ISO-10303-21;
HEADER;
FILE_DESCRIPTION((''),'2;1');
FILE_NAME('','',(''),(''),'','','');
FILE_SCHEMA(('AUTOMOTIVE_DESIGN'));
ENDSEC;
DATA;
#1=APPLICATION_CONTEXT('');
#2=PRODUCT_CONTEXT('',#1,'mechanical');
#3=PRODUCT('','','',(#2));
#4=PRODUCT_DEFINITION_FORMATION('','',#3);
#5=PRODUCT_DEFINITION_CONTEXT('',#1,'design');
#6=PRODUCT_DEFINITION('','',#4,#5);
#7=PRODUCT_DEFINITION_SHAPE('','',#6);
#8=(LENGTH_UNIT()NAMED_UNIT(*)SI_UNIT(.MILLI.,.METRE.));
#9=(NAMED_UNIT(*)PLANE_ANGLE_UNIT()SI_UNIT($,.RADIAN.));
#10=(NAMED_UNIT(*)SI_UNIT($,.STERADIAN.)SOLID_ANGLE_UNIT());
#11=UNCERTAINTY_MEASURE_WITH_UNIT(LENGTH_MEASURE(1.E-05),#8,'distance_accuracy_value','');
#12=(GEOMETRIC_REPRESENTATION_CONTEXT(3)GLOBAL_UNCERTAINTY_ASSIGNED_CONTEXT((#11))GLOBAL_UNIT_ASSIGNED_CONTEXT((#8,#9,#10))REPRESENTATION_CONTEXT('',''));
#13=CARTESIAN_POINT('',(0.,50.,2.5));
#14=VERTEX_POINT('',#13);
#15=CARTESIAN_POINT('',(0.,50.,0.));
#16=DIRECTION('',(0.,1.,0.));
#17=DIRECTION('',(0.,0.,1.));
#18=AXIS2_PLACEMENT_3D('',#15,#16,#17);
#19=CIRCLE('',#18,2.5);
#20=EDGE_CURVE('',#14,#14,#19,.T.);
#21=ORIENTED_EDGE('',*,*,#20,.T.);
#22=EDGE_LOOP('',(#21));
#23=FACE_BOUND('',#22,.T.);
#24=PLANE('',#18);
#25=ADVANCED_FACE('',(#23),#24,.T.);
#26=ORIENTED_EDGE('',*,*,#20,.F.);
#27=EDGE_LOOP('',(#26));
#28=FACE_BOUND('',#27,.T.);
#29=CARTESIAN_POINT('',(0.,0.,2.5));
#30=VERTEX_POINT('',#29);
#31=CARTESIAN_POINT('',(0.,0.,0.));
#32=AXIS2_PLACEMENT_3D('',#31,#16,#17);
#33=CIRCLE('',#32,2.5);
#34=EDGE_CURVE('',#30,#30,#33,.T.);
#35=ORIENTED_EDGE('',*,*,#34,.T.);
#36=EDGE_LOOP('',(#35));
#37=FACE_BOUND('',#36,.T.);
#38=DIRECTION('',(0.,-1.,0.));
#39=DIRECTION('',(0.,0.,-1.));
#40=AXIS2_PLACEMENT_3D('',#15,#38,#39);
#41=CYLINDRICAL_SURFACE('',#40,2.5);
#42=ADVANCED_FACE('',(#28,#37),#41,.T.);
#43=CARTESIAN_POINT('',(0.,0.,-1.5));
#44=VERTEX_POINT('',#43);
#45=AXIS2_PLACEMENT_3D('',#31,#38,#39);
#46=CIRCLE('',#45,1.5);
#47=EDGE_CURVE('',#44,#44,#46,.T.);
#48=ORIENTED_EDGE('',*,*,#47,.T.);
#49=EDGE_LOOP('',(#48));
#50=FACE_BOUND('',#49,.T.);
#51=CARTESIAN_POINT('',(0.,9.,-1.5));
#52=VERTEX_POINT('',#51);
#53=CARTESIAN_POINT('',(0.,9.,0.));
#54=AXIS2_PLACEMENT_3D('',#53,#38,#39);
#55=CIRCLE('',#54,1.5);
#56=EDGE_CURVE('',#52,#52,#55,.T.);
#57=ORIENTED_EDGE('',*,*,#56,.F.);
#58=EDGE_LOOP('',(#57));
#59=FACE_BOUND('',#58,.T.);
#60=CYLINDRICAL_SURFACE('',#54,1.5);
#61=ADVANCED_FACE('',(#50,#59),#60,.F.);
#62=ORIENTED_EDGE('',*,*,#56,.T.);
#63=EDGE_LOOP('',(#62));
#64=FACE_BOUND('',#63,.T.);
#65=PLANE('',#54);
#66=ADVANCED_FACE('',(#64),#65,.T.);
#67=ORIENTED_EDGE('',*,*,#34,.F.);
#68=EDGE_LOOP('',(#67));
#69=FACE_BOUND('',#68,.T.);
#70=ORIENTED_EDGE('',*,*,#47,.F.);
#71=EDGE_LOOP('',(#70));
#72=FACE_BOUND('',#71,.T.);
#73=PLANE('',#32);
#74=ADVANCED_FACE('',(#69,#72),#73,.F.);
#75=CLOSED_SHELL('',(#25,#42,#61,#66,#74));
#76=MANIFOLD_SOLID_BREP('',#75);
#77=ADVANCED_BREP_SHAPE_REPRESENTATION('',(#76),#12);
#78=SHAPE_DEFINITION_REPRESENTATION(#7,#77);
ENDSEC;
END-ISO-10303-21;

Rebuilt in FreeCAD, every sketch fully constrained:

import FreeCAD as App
import Part
import Sketcher
from FreeCAD import Vector

doc = App.newDocument("Part")
body = doc.addObject("PartDesign::Body", "Body")

# Sketch on XZ plane
sketch1 = doc.addObject("Sketcher::SketchObject", "Sketch")
body.addObject(sketch1)
sketch1.AttachmentSupport = (doc.XZ_Plane, [""])
sketch1.MapMode = "FlatFace"
sketch1.addGeometry(Part.Circle(Vector(0, 0, 0), Vector(0, 0, 1), 2.5), False)
sketch1.addConstraint([
    Sketcher.Constraint("Coincident", 0, 3, -1, 1),
    Sketcher.Constraint("Diameter", 0, 5.0),
])
pad1 = doc.addObject("PartDesign::Pad", "Pad")
body.addObject(pad1)
pad1.Profile = sketch1
pad1.Length = 50
pad1.Reversed = True

# Sketch on XZ plane
sketch2 = doc.addObject("Sketcher::SketchObject", "Sketch001")
body.addObject(sketch2)
sketch2.AttachmentSupport = (doc.XZ_Plane, [""])
sketch2.MapMode = "FlatFace"
sketch2.addGeometry(Part.Circle(Vector(0, 0, 0), Vector(0, 0, 1), 1.5), False)
sketch2.addConstraint([
    Sketcher.Constraint("Coincident", 0, 3, -1, 1),
    Sketcher.Constraint("Diameter", 0, 3.0),
])
pocket1 = doc.addObject("PartDesign::Pocket", "Pocket")
body.addObject(pocket1)
pocket1.Profile = sketch2
pocket1.Length = 9

doc.recompute()
